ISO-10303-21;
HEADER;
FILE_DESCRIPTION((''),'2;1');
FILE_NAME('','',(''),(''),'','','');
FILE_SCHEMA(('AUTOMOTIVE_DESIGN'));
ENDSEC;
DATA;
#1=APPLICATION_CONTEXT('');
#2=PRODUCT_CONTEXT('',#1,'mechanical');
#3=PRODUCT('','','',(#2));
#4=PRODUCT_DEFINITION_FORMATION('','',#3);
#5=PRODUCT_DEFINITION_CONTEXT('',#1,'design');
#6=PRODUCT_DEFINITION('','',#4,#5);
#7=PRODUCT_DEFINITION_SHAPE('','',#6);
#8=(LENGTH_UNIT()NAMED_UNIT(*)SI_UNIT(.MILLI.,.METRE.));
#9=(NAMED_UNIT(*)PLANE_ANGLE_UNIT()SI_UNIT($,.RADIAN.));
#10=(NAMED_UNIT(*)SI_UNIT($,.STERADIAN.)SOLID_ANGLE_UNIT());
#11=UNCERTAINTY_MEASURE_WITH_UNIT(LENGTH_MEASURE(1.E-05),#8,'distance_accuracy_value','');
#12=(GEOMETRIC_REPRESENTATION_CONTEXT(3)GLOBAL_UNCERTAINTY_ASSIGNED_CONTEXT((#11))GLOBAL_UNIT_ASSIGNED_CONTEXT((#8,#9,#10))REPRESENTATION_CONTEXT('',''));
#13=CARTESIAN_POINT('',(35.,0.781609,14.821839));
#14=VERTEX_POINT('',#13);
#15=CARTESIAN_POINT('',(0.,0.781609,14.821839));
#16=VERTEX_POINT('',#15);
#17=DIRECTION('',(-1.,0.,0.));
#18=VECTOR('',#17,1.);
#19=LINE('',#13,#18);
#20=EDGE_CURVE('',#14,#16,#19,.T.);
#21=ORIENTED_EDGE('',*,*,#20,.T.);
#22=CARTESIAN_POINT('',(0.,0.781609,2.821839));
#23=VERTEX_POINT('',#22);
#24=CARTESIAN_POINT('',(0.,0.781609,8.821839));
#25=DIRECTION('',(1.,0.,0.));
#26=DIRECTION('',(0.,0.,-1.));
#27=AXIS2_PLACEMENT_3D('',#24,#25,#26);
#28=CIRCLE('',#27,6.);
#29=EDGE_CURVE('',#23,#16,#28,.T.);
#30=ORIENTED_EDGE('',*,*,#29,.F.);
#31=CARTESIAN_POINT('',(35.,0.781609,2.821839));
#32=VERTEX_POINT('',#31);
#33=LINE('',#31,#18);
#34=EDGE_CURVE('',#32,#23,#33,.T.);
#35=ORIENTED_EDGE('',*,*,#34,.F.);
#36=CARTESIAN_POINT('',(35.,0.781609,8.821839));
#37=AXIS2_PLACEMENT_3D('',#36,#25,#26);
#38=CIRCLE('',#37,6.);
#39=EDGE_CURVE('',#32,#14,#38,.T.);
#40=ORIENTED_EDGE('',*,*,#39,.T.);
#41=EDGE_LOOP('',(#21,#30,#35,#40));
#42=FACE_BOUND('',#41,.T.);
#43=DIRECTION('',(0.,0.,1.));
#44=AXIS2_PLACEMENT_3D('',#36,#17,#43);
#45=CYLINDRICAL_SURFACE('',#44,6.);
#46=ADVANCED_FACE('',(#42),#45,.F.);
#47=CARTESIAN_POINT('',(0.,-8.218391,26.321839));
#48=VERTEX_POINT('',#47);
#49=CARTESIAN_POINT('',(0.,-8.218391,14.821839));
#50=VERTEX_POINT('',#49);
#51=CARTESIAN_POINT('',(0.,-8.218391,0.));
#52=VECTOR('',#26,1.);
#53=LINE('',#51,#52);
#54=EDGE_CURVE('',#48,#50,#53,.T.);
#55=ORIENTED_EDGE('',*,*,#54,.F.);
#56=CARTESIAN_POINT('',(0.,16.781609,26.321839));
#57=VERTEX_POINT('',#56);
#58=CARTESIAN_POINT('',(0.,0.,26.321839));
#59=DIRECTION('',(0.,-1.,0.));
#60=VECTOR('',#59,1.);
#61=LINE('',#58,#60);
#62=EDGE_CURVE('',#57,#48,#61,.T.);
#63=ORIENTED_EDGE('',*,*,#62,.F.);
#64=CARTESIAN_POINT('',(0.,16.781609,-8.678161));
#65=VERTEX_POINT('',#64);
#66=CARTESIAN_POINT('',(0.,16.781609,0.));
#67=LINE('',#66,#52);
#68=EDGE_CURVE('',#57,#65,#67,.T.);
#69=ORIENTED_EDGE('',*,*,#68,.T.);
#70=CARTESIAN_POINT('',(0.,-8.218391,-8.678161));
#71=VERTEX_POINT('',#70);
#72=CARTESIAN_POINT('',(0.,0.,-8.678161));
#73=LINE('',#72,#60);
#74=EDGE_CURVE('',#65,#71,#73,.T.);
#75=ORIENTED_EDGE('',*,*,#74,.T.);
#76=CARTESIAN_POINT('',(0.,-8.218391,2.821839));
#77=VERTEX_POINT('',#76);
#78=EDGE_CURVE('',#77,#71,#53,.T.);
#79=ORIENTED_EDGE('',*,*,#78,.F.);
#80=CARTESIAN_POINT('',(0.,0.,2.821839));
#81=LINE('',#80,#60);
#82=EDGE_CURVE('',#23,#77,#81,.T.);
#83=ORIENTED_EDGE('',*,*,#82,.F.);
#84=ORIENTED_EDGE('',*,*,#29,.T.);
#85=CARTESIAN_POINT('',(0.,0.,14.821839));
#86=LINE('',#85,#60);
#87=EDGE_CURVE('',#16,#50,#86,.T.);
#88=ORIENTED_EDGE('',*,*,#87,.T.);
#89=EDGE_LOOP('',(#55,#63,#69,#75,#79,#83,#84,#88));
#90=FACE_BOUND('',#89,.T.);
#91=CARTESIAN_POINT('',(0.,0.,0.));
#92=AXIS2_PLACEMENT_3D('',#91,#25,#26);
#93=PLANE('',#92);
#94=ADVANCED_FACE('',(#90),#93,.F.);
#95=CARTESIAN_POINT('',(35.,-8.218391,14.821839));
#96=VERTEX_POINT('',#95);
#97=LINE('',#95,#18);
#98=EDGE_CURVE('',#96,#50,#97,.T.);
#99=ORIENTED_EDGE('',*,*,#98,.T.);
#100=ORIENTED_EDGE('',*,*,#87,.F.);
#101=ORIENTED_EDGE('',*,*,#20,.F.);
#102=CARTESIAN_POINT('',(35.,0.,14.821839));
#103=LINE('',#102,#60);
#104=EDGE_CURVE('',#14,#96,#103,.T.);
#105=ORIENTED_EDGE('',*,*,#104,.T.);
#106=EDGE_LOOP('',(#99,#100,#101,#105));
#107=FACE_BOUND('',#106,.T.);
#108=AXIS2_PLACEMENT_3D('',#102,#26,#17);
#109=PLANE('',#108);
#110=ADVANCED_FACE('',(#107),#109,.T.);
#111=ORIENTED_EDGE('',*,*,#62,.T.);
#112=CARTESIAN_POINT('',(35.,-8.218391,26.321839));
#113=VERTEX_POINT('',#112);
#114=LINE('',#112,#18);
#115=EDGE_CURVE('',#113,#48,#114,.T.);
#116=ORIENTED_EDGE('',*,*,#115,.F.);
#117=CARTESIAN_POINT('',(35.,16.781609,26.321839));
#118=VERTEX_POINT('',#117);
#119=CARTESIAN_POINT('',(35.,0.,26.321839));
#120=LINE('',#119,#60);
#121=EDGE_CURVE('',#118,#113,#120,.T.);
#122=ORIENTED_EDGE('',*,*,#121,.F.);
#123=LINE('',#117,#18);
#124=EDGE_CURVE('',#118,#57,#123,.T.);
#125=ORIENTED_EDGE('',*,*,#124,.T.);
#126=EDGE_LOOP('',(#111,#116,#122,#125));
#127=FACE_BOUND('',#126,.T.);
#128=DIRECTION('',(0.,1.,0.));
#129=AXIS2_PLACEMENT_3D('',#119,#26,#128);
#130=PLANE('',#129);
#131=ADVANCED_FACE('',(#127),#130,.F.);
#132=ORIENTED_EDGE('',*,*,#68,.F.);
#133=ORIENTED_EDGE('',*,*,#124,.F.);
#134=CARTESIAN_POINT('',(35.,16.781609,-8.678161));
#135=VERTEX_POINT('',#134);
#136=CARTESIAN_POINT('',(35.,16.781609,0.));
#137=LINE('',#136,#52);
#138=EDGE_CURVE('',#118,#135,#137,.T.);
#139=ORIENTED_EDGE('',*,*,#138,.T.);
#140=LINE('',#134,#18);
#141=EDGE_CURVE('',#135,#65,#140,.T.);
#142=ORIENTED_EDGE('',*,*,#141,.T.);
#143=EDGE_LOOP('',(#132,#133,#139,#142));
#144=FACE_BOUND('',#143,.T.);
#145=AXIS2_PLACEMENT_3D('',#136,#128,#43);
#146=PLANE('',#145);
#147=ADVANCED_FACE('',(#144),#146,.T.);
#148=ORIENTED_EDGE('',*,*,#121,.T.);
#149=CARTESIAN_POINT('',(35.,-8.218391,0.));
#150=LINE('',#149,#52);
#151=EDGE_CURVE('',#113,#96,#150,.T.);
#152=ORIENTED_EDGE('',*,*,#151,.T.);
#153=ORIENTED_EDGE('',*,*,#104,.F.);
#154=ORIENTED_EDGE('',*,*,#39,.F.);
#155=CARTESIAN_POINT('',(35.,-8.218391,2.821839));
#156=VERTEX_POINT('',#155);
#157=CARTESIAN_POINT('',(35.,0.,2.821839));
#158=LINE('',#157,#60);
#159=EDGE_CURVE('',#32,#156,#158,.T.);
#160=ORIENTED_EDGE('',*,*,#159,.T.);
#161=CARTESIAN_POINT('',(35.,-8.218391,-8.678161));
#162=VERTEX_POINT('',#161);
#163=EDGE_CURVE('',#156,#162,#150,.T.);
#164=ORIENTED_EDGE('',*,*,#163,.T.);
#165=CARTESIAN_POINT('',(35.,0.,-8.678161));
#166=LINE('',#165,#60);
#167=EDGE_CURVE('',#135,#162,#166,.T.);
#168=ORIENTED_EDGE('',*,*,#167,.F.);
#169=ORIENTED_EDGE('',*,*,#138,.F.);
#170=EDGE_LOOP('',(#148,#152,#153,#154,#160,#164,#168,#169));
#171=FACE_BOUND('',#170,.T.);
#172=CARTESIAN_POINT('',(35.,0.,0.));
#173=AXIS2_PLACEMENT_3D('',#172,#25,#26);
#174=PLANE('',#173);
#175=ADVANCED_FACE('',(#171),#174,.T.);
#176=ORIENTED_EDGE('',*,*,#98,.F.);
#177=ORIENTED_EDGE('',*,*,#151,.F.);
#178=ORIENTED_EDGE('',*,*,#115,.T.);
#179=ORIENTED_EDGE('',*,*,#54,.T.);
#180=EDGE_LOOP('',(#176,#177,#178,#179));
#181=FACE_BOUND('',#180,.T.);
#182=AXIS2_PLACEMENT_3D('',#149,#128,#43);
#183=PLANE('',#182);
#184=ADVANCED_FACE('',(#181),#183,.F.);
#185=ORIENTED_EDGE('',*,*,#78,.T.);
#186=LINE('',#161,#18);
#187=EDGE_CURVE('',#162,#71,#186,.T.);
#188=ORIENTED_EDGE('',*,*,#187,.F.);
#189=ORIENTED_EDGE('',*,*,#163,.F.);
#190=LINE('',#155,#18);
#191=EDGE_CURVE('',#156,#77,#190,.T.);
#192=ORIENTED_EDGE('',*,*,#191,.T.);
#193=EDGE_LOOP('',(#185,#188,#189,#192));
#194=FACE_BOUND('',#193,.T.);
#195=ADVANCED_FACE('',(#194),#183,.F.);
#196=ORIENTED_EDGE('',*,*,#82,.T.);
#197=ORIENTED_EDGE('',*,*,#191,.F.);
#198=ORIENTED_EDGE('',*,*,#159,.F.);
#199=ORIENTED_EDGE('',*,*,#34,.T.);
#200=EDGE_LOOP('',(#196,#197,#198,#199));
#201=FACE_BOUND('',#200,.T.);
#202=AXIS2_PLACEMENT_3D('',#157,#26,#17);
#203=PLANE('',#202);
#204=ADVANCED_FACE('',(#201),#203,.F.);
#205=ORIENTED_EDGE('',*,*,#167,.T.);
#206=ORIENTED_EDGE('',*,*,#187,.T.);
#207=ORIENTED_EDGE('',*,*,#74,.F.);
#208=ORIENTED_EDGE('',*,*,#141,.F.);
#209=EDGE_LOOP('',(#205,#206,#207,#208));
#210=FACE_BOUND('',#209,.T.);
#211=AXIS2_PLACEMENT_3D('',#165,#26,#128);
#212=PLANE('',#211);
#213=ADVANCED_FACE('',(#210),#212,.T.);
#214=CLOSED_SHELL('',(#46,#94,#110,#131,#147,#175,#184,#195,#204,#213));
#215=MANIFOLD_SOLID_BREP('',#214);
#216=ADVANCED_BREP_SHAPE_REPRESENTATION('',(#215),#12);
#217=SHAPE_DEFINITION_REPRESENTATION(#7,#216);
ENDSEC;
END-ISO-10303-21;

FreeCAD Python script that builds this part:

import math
import FreeCAD as App
import Part
import Sketcher
Q = App.Units.Quantity

doc = App.newDocument("Part")
params = doc.addObject("Spreadsheet::Sheet", "Params")
for row, (alias, value) in enumerate([
    ("sketch1_radius", "6 mm"),
    ("sketch1_width", "25 mm"),
    ("sketch1_width2", "9 mm"),
    ("sketch1_height", "35 mm"),
    ("pad1_length", "35 mm"),
], start=1):
    params.set(f"A{row}", alias)
    params.set(f"B{row}", "=" + value)
    params.setAlias(f"B{row}", alias)

body = doc.addObject("PartDesign::Body", "Body")

# Sketch on YZ plane
sketch1 = body.newObject("Sketcher::SketchObject", "Sketch")
sketch1.AttachmentSupport = (doc.getObject("YZ_Plane"), [""])
sketch1.MapMode = "FlatFace"
sketch1.addGeometry([
    Part.LineSegment(App.Vector(17, 26, 0), App.Vector(-8, 26, 0)),  # 0
    Part.LineSegment(App.Vector(-8, 26, 0), App.Vector(-8, 15, 0)),  # 1
    Part.LineSegment(App.Vector(-8, 15, 0), App.Vector(1, 15, 0)),  # 2
    Part.ArcOfCircle(Part.Circle(App.Vector(1, 9, 0), App.Vector(0, 0, 1), 6), math.radians(0), math.radians(90)),  # 3
    Part.ArcOfCircle(Part.Circle(App.Vector(1, 9, 0), App.Vector(0, 0, 1), 6), math.radians(-90), math.radians(0)),  # 4
    Part.LineSegment(App.Vector(1, 3, 0), App.Vector(-8, 3, 0)),  # 5
    Part.LineSegment(App.Vector(-8, 3, 0), App.Vector(-8, -9, 0)),  # 6
    Part.LineSegment(App.Vector(-8, -9, 0), App.Vector(17, -9, 0)),  # 7
    Part.LineSegment(App.Vector(17, -9, 0), App.Vector(17, 26, 0)),  # 8
], False)
sketch1.addConstraint([
    Sketcher.Constraint("Coincident", 0, 2, 1, 1),
    Sketcher.Constraint("Coincident", 1, 2, 2, 1),
    Sketcher.Constraint("Tangent", 2, 2, 3, 2),
    Sketcher.Constraint("Tangent", 3, 1, 4, 2),
    Sketcher.Constraint("Tangent", 4, 1, 5, 1),
    Sketcher.Constraint("Coincident", 5, 2, 6, 1),
    Sketcher.Constraint("Coincident", 6, 2, 7, 1),
    Sketcher.Constraint("Coincident", 7, 2, 8, 1),
    Sketcher.Constraint("Coincident", 8, 2, 0, 1),
    Sketcher.Constraint("Horizontal", 0),
    Sketcher.Constraint("Vertical", 1),
    Sketcher.Constraint("Horizontal", 2),
    Sketcher.Constraint("Horizontal", 5),
    Sketcher.Constraint("Vertical", 6),
    Sketcher.Constraint("Horizontal", 7),
    Sketcher.Constraint("Vertical", 8),
    Sketcher.Constraint("Equal", 3, 4),
    Sketcher.Constraint("Horizontal", 4, 3, 3, 1),
    Sketcher.Constraint("Vertical", 1, 2, 5, 2),
    Sketcher.Constraint("Equal", 1, 6),
    Sketcher.Constraint("Radius", 3, Q("6 mm")),
    Sketcher.Constraint("DistanceX", 0, 2, 0, 1, Q("25 mm")),
    Sketcher.Constraint("DistanceX", 2, 1, 2, 2, Q("9 mm")),
    Sketcher.Constraint("DistanceY", 8, 1, 8, 2, Q("35 mm")),
    Sketcher.Constraint("DistanceX", -1, 1, 3, 3, Q("0.781609 mm")),
    Sketcher.Constraint("DistanceY", -1, 1, 3, 3, Q("8.821839 mm")),
])
sketch1.setExpression("Constraints[20]", "Params.sketch1_radius")
sketch1.setExpression("Constraints[21]", "Params.sketch1_width")
sketch1.setExpression("Constraints[22]", "Params.sketch1_width2")
sketch1.setExpression("Constraints[23]", "Params.sketch1_height")
pad1 = body.newObject("PartDesign::Pad", "Pad")
pad1.Profile = sketch1
pad1.setExpression("Length", "Params.pad1_length")

doc.recompute()
